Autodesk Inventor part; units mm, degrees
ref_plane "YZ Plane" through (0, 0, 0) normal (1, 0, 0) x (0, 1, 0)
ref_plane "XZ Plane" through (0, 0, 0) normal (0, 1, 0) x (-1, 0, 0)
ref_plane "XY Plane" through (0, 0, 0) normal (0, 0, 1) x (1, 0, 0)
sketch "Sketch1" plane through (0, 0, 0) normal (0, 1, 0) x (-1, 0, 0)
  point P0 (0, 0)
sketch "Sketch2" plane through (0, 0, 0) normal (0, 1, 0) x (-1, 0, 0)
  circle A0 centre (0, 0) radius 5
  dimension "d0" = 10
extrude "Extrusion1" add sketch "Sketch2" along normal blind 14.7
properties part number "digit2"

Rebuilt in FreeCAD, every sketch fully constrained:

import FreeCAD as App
import Part
import Sketcher
from FreeCAD import Vector

doc = App.newDocument("Part")
body = doc.addObject("PartDesign::Body", "Body")

sketch1 = body.newObject("Sketcher::SketchObject", "Sketch")
sketch1.AttachmentSupport = (doc.getObject("XZ_Plane"), [""])
sketch1.MapMode = "FlatFace"
sketch1.addGeometry(Part.Circle(Vector(0, 0, 0), Vector(0, 0, 1), 5), False)
sketch1.addConstraint([
    Sketcher.Constraint("Coincident", 0, 3, -1, 1),
    Sketcher.Constraint("Diameter", 0, 10.0),
])
pad1 = body.newObject("PartDesign::Pad", "Pad")
pad1.Profile = sketch1
pad1.Length = 14.7
pad1.Reversed = True

doc.recompute()
